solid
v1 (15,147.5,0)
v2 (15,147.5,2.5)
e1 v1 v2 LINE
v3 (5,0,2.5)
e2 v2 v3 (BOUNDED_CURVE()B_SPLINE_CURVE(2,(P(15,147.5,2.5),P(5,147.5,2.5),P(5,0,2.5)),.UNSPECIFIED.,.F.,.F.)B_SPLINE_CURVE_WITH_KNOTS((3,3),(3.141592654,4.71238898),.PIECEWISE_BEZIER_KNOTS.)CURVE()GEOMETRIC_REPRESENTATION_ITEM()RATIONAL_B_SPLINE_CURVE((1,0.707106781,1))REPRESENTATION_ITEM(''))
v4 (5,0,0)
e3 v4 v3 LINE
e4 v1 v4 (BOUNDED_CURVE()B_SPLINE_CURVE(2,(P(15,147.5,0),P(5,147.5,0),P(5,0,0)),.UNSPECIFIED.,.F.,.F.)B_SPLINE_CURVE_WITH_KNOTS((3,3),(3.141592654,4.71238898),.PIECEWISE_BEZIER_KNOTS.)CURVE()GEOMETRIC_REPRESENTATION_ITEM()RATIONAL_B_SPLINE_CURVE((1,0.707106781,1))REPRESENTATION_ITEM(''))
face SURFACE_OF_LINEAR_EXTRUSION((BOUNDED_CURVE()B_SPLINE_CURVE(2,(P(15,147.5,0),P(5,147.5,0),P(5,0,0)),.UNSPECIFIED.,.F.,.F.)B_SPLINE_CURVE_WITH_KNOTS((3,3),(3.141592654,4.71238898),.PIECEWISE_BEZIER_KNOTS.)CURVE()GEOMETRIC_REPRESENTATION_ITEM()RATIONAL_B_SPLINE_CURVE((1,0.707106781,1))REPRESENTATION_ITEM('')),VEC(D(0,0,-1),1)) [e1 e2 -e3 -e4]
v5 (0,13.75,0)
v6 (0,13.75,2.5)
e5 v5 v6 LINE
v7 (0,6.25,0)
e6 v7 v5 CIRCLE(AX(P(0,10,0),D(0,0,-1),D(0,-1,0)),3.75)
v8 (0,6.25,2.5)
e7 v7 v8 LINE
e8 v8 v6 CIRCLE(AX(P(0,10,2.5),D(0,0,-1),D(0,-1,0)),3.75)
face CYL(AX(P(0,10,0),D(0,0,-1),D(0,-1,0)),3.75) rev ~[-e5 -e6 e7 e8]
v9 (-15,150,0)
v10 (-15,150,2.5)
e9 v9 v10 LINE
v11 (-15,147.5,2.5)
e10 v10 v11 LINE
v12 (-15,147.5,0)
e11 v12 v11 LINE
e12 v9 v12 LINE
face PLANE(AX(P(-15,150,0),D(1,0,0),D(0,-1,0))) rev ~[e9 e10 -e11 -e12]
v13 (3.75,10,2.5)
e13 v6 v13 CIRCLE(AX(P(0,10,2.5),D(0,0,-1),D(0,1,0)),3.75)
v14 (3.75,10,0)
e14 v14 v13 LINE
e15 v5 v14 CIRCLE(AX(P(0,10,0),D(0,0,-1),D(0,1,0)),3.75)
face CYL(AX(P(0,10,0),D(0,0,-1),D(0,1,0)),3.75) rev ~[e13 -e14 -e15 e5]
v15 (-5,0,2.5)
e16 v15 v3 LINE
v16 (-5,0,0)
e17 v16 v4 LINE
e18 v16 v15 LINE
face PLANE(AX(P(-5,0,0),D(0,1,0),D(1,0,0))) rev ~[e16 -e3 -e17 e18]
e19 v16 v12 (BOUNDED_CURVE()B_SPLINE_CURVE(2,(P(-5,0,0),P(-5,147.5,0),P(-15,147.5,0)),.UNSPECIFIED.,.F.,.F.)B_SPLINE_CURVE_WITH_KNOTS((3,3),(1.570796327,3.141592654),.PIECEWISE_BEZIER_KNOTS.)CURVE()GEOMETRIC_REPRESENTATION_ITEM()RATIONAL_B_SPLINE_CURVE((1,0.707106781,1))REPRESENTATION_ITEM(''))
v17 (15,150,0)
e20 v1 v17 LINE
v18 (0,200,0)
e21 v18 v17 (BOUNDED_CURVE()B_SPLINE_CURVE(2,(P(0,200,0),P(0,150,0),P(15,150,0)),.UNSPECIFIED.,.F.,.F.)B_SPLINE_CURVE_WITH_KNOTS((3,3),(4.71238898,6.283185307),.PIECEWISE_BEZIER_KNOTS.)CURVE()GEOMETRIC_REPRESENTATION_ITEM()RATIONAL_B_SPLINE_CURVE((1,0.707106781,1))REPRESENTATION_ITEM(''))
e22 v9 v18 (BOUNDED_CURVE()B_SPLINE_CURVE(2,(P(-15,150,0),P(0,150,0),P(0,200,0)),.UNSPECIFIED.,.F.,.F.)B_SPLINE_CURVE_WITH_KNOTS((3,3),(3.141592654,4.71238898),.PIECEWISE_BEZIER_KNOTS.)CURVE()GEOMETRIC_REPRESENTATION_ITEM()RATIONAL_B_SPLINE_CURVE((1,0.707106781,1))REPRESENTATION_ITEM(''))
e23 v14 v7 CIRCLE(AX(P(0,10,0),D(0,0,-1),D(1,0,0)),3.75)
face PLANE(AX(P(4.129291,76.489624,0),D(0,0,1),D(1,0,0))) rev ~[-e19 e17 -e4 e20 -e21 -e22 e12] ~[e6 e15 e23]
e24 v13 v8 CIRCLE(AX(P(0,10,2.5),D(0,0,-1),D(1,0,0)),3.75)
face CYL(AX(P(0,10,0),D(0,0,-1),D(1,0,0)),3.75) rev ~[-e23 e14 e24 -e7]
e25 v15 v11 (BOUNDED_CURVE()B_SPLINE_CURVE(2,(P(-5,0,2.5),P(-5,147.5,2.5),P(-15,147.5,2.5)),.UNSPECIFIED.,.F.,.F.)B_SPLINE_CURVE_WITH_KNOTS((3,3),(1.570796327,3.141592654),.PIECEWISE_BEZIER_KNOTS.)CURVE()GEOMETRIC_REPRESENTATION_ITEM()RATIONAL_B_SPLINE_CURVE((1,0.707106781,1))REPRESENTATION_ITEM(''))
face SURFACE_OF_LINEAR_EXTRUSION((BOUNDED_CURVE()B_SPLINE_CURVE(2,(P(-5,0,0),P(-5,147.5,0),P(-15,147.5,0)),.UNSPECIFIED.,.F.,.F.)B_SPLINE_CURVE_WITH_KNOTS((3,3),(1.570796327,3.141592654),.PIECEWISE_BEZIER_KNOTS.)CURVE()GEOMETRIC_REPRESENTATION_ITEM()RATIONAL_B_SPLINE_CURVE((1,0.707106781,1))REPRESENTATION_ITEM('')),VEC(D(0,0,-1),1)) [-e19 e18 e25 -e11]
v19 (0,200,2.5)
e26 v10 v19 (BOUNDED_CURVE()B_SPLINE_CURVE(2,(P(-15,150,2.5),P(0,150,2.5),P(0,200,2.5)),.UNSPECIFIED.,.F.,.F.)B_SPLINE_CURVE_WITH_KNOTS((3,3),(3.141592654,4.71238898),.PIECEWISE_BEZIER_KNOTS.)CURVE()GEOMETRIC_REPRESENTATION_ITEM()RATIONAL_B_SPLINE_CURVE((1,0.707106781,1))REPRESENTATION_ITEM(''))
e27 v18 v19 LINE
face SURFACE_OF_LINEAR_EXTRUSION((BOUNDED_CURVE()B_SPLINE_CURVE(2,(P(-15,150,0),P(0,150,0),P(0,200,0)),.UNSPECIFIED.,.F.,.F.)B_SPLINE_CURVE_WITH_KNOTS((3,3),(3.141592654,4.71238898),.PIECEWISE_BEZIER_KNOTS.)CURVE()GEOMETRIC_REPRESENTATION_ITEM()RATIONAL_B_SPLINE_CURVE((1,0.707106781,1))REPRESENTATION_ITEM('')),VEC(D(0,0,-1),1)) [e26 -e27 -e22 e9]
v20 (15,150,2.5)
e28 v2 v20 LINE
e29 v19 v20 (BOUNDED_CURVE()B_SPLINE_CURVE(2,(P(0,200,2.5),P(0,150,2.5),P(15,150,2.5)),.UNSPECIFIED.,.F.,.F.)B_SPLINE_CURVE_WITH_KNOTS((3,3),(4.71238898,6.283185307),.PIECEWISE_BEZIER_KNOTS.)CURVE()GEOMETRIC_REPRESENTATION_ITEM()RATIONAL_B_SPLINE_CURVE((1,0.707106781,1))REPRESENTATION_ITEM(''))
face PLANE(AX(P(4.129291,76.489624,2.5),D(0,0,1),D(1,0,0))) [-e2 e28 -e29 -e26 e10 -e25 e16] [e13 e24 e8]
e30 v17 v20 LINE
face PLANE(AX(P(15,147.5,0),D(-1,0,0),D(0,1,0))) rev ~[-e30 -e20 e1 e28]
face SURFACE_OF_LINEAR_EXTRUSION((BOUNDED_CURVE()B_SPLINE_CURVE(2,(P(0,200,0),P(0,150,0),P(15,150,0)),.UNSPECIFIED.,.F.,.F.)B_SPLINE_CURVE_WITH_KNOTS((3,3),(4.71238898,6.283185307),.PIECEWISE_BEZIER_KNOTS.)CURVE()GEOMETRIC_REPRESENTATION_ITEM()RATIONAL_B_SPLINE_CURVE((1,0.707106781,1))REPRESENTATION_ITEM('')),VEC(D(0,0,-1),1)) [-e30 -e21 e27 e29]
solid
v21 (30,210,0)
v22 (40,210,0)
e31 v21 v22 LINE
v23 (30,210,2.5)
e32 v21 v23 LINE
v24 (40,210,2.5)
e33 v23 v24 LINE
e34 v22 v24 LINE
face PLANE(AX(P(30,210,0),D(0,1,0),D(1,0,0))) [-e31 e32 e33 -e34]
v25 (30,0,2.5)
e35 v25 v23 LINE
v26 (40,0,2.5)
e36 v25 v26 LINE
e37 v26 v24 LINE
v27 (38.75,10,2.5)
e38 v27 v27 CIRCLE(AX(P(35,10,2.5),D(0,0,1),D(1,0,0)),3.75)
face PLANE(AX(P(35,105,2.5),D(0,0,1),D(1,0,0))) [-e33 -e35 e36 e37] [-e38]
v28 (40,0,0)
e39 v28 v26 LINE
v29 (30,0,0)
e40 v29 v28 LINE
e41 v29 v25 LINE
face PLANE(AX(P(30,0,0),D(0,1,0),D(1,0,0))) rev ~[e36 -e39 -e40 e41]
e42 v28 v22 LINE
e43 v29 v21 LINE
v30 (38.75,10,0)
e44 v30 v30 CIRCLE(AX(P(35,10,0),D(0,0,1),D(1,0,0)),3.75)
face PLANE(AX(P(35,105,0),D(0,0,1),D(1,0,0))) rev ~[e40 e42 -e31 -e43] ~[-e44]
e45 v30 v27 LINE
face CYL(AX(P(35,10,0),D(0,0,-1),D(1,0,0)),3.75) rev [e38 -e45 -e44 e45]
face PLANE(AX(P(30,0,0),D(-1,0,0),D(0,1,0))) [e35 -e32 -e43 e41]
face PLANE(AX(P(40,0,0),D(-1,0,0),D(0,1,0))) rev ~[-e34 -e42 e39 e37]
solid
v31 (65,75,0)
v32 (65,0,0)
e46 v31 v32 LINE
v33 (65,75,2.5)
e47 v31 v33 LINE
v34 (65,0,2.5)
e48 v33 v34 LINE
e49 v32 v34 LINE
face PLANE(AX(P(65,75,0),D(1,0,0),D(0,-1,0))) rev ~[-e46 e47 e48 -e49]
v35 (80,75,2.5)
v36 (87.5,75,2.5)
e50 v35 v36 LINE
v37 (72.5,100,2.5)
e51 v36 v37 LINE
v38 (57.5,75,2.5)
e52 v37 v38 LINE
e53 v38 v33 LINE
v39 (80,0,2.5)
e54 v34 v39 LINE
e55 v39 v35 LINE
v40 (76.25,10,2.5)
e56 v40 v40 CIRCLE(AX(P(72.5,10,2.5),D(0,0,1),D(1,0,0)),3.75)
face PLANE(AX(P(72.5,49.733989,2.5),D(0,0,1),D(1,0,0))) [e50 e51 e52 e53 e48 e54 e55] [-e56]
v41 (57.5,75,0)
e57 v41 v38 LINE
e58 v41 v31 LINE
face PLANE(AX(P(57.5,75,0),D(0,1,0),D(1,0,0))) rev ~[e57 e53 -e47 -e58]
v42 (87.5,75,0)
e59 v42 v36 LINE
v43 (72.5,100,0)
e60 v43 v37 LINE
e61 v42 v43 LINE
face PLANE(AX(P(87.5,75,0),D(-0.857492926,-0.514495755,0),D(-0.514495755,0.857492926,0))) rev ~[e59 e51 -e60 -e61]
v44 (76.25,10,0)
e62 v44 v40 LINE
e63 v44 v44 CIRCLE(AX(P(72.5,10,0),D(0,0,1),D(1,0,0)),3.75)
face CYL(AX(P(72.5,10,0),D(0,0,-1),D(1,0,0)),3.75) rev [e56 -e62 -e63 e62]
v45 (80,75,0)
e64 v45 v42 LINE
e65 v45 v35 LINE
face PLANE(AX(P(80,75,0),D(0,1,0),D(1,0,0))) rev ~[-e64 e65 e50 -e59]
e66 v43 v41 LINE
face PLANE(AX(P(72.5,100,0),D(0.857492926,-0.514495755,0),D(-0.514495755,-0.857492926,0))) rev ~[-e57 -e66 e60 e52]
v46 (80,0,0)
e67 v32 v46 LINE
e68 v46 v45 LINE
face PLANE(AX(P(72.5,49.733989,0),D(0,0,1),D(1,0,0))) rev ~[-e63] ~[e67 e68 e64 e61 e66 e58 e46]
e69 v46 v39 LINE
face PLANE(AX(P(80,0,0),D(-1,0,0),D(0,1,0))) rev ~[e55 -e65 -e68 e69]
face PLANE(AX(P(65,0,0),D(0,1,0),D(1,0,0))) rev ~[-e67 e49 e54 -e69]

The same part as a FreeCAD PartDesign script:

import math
import FreeCAD as App
import Part
import Sketcher
from FreeCAD import Vector

doc = App.newDocument("Part")
body = doc.addObject("PartDesign::Body", "Body")

sketch1 = body.newObject("Sketcher::SketchObject", "Sketch")
sketch1.AttachmentSupport = (doc.getObject("XY_Plane"), [""])
sketch1.MapMode = "FlatFace"
sketch1.addGeometry([
    Part.BSplineCurve([Vector(15, 147.5, 0), Vector(5, 147.5, 0), Vector(5, 0, 0)], [3, 3], [3.141592654, 4.71238898], False, 2, [1, 0.707106781, 1], False),
    Part.LineSegment(Vector(15, 147.5, 0), Vector(15, 150, 0)),
    Part.BSplineCurve([Vector(0, 200, 0), Vector(0, 150, 0), Vector(15, 150, 0)], [3, 3], [4.71238898, 6.283185307], False, 2, [1, 0.707106781, 1], False),
    Part.BSplineCurve([Vector(-15, 150, 0), Vector(0, 150, 0), Vector(0, 200, 0)], [3, 3], [3.141592654, 4.71238898], False, 2, [1, 0.707106781, 1], False),
    Part.LineSegment(Vector(-15, 150, 0), Vector(-15, 147.5, 0)),
    Part.BSplineCurve([Vector(-5, 0, 0), Vector(-5, 147.5, 0), Vector(-15, 147.5, 0)], [3, 3], [1.570796327, 3.141592654], False, 2, [1, 0.707106781, 1], False),
    Part.LineSegment(Vector(-5, 0, 0), Vector(5, 0, 0)),
    Part.ArcOfCircle(Part.Circle(Vector(0, 10, 0), Vector(0, 0, 1), 3.75), math.radians(0), math.radians(90)),
    Part.ArcOfCircle(Part.Circle(Vector(0, 10, 0), Vector(0, 0, 1), 3.75), math.radians(-90), math.radians(0)),
    Part.ArcOfCircle(Part.Circle(Vector(0, 10, 0), Vector(0, 0, 1), 3.75), math.radians(90), math.radians(270)),
], False)
sketch1.addConstraint([
    Sketcher.Constraint("Block", 0),
    Sketcher.Constraint("Block", 2),
    Sketcher.Constraint("Block", 3),
    Sketcher.Constraint("Block", 5),
    Sketcher.Constraint("Coincident", 0, 1, 1, 1),
    Sketcher.Constraint("Coincident", 1, 2, 2, 2),
    Sketcher.Constraint("Coincident", 3, 1, 4, 1),
    Sketcher.Constraint("Coincident", 4, 2, 5, 2),
    Sketcher.Constraint("Coincident", 5, 1, 6, 1),
    Sketcher.Constraint("Coincident", 6, 2, 0, 2),
    Sketcher.Constraint("Tangent", 7, 1, 8, 2),
    Sketcher.Constraint("Tangent", 8, 1, 9, 2),
    Sketcher.Constraint("Tangent", 9, 1, 7, 2),
    Sketcher.Constraint("PointOnObject", 7, 3, -2),
    Sketcher.Constraint("PointOnObject", 8, 1, -2),
    Sketcher.Constraint("PointOnObject", 9, 1, -2),
    Sketcher.Constraint("Horizontal", 9, 3, 7, 1),
    Sketcher.Constraint("Radius", 7, 3.75),
    Sketcher.Constraint("DistanceY", -1, 1, 7, 3, 10.0),
])
pad1 = body.newObject("PartDesign::Pad", "Pad")
pad1.Profile = sketch1
pad1.Length = 2.5
body2 = doc.addObject("PartDesign::Body", "Body001")

sketch2 = body2.newObject("Sketcher::SketchObject", "Sketch001")
sketch2.AttachmentSupport = (doc.getObject("XY_Plane001"), [""])
sketch2.MapMode = "FlatFace"
sketch2.addGeometry([
    Part.LineSegment(Vector(30, 210, 0), Vector(30, 0, 0)),
    Part.LineSegment(Vector(30, 0, 0), Vector(40, 0, 0)),
    Part.LineSegment(Vector(40, 0, 0), Vector(40, 210, 0)),
    Part.LineSegment(Vector(40, 210, 0), Vector(30, 210, 0)),
    Part.Circle(Vector(35, 10, 0), Vector(0, 0, 1), 3.8),
], False)
sketch2.addConstraint([
    Sketcher.Constraint("Coincident", 0, 2, 1, 1),
    Sketcher.Constraint("Coincident", 1, 2, 2, 1),
    Sketcher.Constraint("Coincident", 2, 2, 3, 1),
    Sketcher.Constraint("Coincident", 3, 2, 0, 1),
    Sketcher.Constraint("Vertical", 0),
    Sketcher.Constraint("Horizontal", 1),
    Sketcher.Constraint("Vertical", 2),
    Sketcher.Constraint("Horizontal", 3),
    Sketcher.Constraint("PointOnObject", 0, 2, -1),
    Sketcher.Constraint("Diameter", 4, 7.5),
    Sketcher.Constraint("DistanceX", 1, 1, 1, 2, 10.0),
    Sketcher.Constraint("DistanceY", 0, 2, 0, 1, 210.0),
    Sketcher.Constraint("DistanceX", -1, 1, 4, 3, 35.0),
    Sketcher.Constraint("DistanceY", -1, 1, 4, 3, 10.0),
    Sketcher.Constraint("DistanceX", -1, 1, 0, 2, 30.0),
])
pad2 = body2.newObject("PartDesign::Pad", "Pad001")
pad2.Profile = sketch2
pad2.Length = 2.5
body3 = doc.addObject("PartDesign::Body", "Body002")

sketch3 = body3.newObject("Sketcher::SketchObject", "Sketch002")
sketch3.AttachmentSupport = (doc.getObject("XY_Plane002"), [""])
sketch3.MapMode = "FlatFace"
sketch3.addGeometry([
    Part.LineSegment(Vector(65, 75, 0), Vector(65, 0, 0)),
    Part.LineSegment(Vector(65, 0, 0), Vector(80, 0, 0)),
    Part.LineSegment(Vector(80, 0, 0), Vector(80, 75, 0)),
    Part.LineSegment(Vector(80, 75, 0), Vector(87.5, 75, 0)),
    Part.LineSegment(Vector(87.5, 75, 0), Vector(72.5, 100, 0)),
    Part.LineSegment(Vector(72.5, 100, 0), Vector(57.5, 75, 0)),
    Part.LineSegment(Vector(57.5, 75, 0), Vector(65, 75, 0)),
    Part.Circle(Vector(72.5, 10, 0), Vector(0, 0, 1), 3.8),
], False)
sketch3.addConstraint([
    Sketcher.Constraint("Coincident", 0, 2, 1, 1),
    Sketcher.Constraint("Coincident", 1, 2, 2, 1),
    Sketcher.Constraint("Coincident", 2, 2, 3, 1),
    Sketcher.Constraint("Coincident", 3, 2, 4, 1),
    Sketcher.Constraint("Coincident", 4, 2, 5, 1),
    Sketcher.Constraint("Coincident", 5, 2, 6, 1),
    Sketcher.Constraint("Coincident", 6, 2, 0, 1),
    Sketcher.Constraint("Vertical", 0),
    Sketcher.Constraint("Horizontal", 1),
    Sketcher.Constraint("Vertical", 2),
    Sketcher.Constraint("Horizontal", 3),
    Sketcher.Constraint("Horizontal", 6),
    Sketcher.Constraint("PointOnObject", 0, 2, -1),
    Sketcher.Constraint("Horizontal", 3, 2, 5, 2),
    Sketcher.Constraint("Vertical", 7, 3, 4, 2),
    Sketcher.Constraint("Equal", 3, 6),
    Sketcher.Constraint("Equal", 4, 5),
    Sketcher.Constraint("Diameter", 7, 7.5),
    Sketcher.Constraint("DistanceX", 1, 1, 1, 2, 15.0),
    Sketcher.Constraint("DistanceY", 0, 2, 0, 1, 75.0),
    Sketcher.Constraint("DistanceX", 3, 1, 3, 2, 7.5),
    Sketcher.Constraint("DistanceY", -1, 1, 7, 3, 10.0),
    Sketcher.Constraint("DistanceX", -1, 1, 0, 2, 65.0),
    Sketcher.Constraint("DistanceY", -1, 1, 4, 2, 100.0),
])
pad3 = body3.newObject("PartDesign::Pad", "Pad002")
pad3.Profile = sketch3
pad3.Length = 2.5

doc.recompute()
